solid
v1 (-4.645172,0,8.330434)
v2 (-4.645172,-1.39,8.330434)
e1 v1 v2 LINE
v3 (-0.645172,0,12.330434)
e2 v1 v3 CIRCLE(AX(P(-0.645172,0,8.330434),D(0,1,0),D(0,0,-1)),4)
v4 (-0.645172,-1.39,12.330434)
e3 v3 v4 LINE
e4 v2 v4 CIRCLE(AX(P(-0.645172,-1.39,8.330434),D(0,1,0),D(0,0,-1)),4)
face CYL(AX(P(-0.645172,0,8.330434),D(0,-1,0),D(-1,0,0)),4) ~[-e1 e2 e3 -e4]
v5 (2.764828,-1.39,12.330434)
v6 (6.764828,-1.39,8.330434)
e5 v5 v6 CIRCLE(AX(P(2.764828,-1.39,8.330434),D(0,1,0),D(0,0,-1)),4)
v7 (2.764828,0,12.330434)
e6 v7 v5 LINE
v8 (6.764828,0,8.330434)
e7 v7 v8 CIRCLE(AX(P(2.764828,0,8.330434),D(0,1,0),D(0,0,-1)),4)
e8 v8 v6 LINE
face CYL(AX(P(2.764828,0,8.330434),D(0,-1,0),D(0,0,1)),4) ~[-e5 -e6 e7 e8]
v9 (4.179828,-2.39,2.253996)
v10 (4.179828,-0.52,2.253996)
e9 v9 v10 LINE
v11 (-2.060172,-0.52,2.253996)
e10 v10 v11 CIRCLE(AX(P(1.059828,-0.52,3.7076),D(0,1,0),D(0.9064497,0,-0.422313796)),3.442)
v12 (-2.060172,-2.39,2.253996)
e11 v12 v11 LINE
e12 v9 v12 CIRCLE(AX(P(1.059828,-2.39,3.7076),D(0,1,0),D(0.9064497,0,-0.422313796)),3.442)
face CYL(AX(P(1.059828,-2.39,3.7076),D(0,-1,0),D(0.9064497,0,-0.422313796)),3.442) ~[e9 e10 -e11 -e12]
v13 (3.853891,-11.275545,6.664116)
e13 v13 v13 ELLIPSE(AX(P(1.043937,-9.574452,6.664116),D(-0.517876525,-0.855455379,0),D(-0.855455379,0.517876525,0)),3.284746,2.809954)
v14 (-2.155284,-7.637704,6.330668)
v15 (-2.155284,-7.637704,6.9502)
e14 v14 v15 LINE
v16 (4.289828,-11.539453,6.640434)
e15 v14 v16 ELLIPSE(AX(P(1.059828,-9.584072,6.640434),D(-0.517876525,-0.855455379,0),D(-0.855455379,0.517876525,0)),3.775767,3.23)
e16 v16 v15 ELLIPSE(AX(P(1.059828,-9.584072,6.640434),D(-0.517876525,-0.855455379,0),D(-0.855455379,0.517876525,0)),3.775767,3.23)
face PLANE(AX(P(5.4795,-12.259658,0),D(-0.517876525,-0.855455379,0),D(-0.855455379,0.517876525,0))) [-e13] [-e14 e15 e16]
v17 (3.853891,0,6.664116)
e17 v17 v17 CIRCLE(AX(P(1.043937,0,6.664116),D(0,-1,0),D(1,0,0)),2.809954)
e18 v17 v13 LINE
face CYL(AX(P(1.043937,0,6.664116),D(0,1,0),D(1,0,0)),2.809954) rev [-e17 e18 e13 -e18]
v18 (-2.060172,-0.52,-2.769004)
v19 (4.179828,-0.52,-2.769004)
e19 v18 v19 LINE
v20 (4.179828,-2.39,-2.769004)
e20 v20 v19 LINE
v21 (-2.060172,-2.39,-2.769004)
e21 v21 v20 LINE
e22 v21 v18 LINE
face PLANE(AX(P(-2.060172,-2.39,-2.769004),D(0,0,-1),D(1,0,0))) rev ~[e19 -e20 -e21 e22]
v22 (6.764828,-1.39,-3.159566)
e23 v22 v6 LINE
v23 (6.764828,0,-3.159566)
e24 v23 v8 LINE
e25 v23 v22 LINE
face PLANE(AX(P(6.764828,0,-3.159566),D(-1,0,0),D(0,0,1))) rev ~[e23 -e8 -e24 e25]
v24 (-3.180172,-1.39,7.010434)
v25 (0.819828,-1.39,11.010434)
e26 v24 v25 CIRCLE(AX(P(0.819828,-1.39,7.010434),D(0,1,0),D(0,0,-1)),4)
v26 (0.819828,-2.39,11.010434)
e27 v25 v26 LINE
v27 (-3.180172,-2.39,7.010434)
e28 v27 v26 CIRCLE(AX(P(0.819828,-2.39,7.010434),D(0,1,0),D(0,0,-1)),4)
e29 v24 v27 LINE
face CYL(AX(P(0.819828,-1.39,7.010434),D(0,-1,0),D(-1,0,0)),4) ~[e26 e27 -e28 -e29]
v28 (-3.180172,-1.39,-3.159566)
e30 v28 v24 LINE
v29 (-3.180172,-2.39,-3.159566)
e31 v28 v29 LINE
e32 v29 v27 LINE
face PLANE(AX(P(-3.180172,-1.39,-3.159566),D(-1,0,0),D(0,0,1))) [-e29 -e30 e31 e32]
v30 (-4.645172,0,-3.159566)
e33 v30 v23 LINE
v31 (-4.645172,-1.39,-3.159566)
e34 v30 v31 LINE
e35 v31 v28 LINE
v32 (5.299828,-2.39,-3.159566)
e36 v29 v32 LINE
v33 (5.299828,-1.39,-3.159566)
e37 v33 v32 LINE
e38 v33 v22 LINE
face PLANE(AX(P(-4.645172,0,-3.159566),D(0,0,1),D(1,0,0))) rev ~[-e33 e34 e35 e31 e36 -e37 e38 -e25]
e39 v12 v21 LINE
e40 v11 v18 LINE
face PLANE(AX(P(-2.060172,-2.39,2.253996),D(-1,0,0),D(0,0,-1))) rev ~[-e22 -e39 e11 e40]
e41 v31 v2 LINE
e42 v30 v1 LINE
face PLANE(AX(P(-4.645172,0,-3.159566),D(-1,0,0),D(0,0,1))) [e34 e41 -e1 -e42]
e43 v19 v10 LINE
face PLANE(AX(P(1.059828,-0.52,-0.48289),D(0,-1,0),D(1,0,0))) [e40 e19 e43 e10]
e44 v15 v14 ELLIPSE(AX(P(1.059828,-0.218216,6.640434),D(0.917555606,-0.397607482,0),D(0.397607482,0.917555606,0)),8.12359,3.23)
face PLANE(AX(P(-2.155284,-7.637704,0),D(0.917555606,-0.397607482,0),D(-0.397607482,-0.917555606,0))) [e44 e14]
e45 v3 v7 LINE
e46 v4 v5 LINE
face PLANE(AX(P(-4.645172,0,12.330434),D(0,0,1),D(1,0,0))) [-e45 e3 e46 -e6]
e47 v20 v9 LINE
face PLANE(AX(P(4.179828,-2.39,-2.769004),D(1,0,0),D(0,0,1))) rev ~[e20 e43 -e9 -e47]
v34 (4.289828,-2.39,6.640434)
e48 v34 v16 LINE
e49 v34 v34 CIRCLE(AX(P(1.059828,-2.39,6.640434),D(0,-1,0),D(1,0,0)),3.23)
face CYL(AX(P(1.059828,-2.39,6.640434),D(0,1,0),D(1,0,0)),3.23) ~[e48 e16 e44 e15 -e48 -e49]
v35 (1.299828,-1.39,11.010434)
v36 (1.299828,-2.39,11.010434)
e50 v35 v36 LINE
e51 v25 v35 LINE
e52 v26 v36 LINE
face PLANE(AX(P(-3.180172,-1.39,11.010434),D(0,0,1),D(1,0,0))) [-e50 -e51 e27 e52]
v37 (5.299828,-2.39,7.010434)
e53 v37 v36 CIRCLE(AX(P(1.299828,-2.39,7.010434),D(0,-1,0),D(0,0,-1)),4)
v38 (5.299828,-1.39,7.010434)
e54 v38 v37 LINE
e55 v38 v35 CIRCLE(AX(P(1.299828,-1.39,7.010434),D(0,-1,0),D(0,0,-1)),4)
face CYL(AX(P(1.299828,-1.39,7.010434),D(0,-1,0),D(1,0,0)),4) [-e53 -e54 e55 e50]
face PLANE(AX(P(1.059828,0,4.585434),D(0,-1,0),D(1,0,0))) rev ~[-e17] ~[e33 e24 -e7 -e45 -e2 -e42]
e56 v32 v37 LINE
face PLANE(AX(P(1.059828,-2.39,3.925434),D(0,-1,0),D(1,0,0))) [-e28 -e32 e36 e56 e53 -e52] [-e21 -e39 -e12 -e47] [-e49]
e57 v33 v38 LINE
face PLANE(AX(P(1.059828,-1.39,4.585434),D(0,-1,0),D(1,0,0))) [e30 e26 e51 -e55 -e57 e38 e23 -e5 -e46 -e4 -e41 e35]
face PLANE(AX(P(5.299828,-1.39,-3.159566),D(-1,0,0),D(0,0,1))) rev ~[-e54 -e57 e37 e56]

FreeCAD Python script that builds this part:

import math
import FreeCAD as App
import Part
import Sketcher


def edges_at(feature, points):
    """Names of the edges that pass closest to the given points."""
    edges = feature.Shape.Edges
    near = lambda p: min(range(len(edges)), key=lambda i: edges[i].distToShape(Part.Vertex(*p))[0])
    return sorted({f"Edge{near(p) + 1}" for p in points})


def add_polygon(sketch, points):
    """Adds a closed chain of lines whose ends are joined by coincident constraints."""
    first, n = sketch.GeometryCount, len(points)
    for a, b in zip(points, points[1:] + points[:1]):
        sketch.addGeometry(Part.LineSegment(App.Vector(*a, 0), App.Vector(*b, 0)), False)
    for i in range(n):
        sketch.addConstraint(Sketcher.Constraint("Coincident", first + i, 2, first + (i + 1) % n, 1))

doc = App.newDocument("Part")
body = doc.addObject("PartDesign::Body", "Body")

# Sketch on XZ plane
sketch1 = doc.addObject("Sketcher::SketchObject", "Sketch")
body.addObject(sketch1)
sketch1.AttachmentSupport = (doc.XZ_Plane, [""])
sketch1.MapMode = "FlatFace"
add_polygon(sketch1, [(-5, 12), (-5, -3), (7, -3), (7, 12)])  # lines 0-3
sketch1.addConstraint([
    Sketcher.Constraint("Vertical", 0),
    Sketcher.Constraint("Horizontal", 1),
    Sketcher.Constraint("Vertical", 2),
    Sketcher.Constraint("Horizontal", 3),
    Sketcher.Constraint("DistanceX", 1, 1, 1, 2, 11.41),
    Sketcher.Constraint("DistanceY", 0, 2, 0, 1, 15.49),
    Sketcher.Constraint("DistanceX", 0, 2, -1, 1, 4.645172),
    Sketcher.Constraint("DistanceY", 0, 2, -1, 1, 3.159566),
])
pad1 = doc.addObject("PartDesign::Pad", "Pad")
body.addObject(pad1)
pad1.Profile = sketch1
pad1.Length = 1.39

# Sketch on XZ plane
sketch2 = doc.addObject("Sketcher::SketchObject", "Sketch001")
body.addObject(sketch2)
sketch2.AttachmentSupport = (doc.XZ_Plane, [""])
sketch2.MapMode = "FlatFace"
sketch2.AttachmentOffset = App.Placement(App.Vector(0, 0, 1.39), App.Rotation())
add_polygon(sketch2, [(-3, 11), (-3, -3), (5, -3), (5, 11)])  # lines 0-3
sketch2.addConstraint([
    Sketcher.Constraint("Vertical", 0),
    Sketcher.Constraint("Horizontal", 1),
    Sketcher.Constraint("Vertical", 2),
    Sketcher.Constraint("Horizontal", 3),
    Sketcher.Constraint("DistanceX", 1, 1, 1, 2, 8.48),
    Sketcher.Constraint("DistanceY", 0, 2, 0, 1, 14.17),
    Sketcher.Constraint("DistanceX", 0, 2, -1, 1, 3.180172),
    Sketcher.Constraint("DistanceY", 0, 2, -1, 1, 3.159566),
])
pad2 = doc.addObject("PartDesign::Pad", "Pad001")
body.addObject(pad2)
pad2.Profile = sketch2
pad2.Length = 1

# Sketch on XZ plane
sketch3 = doc.addObject("Sketcher::SketchObject", "Sketch002")
body.addObject(sketch3)
sketch3.AttachmentSupport = (doc.XZ_Plane, [""])
sketch3.MapMode = "FlatFace"
sketch3.AttachmentOffset = App.Placement(App.Vector(0, 0, 2.39), App.Rotation())
sketch3.addGeometry(Part.Circle(App.Vector(1.1, 6.6, 0), App.Vector(0, 0, 1), 3.2), False)
sketch3.addConstraint([
    Sketcher.Constraint("Diameter", 0, 6.46),
    Sketcher.Constraint("DistanceX", -1, 1, 0, 3, 1.059828),
    Sketcher.Constraint("DistanceY", -1, 1, 0, 3, 6.640434),
])
pad3 = doc.addObject("PartDesign::Pad", "Pad002")
body.addObject(pad3)
pad3.Profile = sketch3
pad3.Length = 9.16
doc.recompute()

fillet = doc.addObject("PartDesign::Fillet", "Fillet")
body.addObject(fillet)
fillet.Base = (pad3, edges_at(pad3, [
    (-4.645, -0.695, 12.33),
    (6.765, -0.695, 12.33),
    (5.3, -1.89, 11.01),
    (-3.18, -1.89, 11.01),
]))
fillet.Radius = 4

# Sketch on XZ plane
sketch4 = doc.addObject("Sketcher::SketchObject", "Sketch003")
body.addObject(sketch4)
sketch4.AttachmentSupport = (doc.XZ_Plane, [""])
sketch4.MapMode = "FlatFace"
sketch4.addGeometry(Part.Circle(App.Vector(1, 6.7, 0), App.Vector(0, 0, 1), 2.8), False)
sketch4.addConstraint([
    Sketcher.Constraint("Diameter", 0, 5.619908),
    Sketcher.Constraint("DistanceX", -1, 1, 0, 3, 1.043937),
    Sketcher.Constraint("DistanceY", -1, 1, 0, 3, 6.664116),
])
pocket1 = doc.addObject("PartDesign::Pocket", "Pocket")
body.addObject(pocket1)
pocket1.Profile = sketch4
pocket1.Type = "ThroughAll"
pocket1.Reversed = True

# Sketch on XY plane
sketch5 = doc.addObject("Sketcher::SketchObject", "Sketch004")
body.addObject(sketch5)
sketch5.AttachmentSupport = (doc.XY_Plane, [""])
sketch5.MapMode = "FlatFace"
add_polygon(sketch5, [(5, -12), (-2, -8), (-4, -12)])  # lines 0-2
sketch5.addConstraint([
    Sketcher.Constraint("Horizontal", 2),
    Sketcher.Constraint("DistanceX", 2, 1, 2, 2, 9.637631),
    Sketcher.Constraint("DistanceX", -1, 1, 2, 2, 5.4795),
    Sketcher.Constraint("Distance", 0, 8.924819),
    Sketcher.Constraint("Distance", 1, 5.037247),
    Sketcher.Constraint("DistanceY", 0, 2, -1, 1, 7.637704),
])
pocket2 = doc.addObject("PartDesign::Pocket", "Pocket001")
body.addObject(pocket2)
pocket2.Profile = sketch5
pocket2.Length = 25
pocket2.Reversed = True

# Sketch on XZ plane
sketch6 = doc.addObject("Sketcher::SketchObject", "Sketch005")
body.addObject(sketch6)
sketch6.AttachmentSupport = (doc.XZ_Plane, [""])
sketch6.MapMode = "FlatFace"
sketch6.AttachmentOffset = App.Placement(App.Vector(0, 0, 2.39), App.Rotation())
sketch6.addGeometry([
    Part.ArcOfCircle(Part.Circle(App.Vector(1.1, 3.7, 0), App.Vector(0, 0, 1), 3.4), math.radians(-155), math.radians(-25)),
    Part.LineSegment(App.Vector(-2.1, 2.3, 0), App.Vector(-2.1, -2.8, 0)),
    Part.LineSegment(App.Vector(-2.1, -2.8, 0), App.Vector(4.2, -2.8, 0)),
    Part.LineSegment(App.Vector(4.2, -2.8, 0), App.Vector(4.2, 2.3, 0)),
], False)
sketch6.addConstraint([
    Sketcher.Constraint("Coincident", 0, 1, 1, 1),
    Sketcher.Constraint("Coincident", 1, 2, 2, 1),
    Sketcher.Constraint("Coincident", 2, 2, 3, 1),
    Sketcher.Constraint("Coincident", 3, 2, 0, 2),
    Sketcher.Constraint("Vertical", 1),
    Sketcher.Constraint("Horizontal", 2),
    Sketcher.Constraint("Vertical", 3),
    Sketcher.Constraint("Horizontal", 0, 1, 3, 2),
    Sketcher.Constraint("Radius", 0, 3.442),
    Sketcher.Constraint("DistanceX", 2, 1, 2, 2, 6.24),
    Sketcher.Constraint("DistanceY", 1, 2, 1, 1, 5.023),
    Sketcher.Constraint("DistanceY", -1, 1, 0, 3, 3.7076),
    Sketcher.Constraint("DistanceX", 0, 1, -1, 1, 2.060172),
])
pocket3 = doc.addObject("PartDesign::Pocket", "Pocket002")
body.addObject(pocket3)
pocket3.Profile = sketch6
pocket3.Length = 1.87

doc.recompute()
